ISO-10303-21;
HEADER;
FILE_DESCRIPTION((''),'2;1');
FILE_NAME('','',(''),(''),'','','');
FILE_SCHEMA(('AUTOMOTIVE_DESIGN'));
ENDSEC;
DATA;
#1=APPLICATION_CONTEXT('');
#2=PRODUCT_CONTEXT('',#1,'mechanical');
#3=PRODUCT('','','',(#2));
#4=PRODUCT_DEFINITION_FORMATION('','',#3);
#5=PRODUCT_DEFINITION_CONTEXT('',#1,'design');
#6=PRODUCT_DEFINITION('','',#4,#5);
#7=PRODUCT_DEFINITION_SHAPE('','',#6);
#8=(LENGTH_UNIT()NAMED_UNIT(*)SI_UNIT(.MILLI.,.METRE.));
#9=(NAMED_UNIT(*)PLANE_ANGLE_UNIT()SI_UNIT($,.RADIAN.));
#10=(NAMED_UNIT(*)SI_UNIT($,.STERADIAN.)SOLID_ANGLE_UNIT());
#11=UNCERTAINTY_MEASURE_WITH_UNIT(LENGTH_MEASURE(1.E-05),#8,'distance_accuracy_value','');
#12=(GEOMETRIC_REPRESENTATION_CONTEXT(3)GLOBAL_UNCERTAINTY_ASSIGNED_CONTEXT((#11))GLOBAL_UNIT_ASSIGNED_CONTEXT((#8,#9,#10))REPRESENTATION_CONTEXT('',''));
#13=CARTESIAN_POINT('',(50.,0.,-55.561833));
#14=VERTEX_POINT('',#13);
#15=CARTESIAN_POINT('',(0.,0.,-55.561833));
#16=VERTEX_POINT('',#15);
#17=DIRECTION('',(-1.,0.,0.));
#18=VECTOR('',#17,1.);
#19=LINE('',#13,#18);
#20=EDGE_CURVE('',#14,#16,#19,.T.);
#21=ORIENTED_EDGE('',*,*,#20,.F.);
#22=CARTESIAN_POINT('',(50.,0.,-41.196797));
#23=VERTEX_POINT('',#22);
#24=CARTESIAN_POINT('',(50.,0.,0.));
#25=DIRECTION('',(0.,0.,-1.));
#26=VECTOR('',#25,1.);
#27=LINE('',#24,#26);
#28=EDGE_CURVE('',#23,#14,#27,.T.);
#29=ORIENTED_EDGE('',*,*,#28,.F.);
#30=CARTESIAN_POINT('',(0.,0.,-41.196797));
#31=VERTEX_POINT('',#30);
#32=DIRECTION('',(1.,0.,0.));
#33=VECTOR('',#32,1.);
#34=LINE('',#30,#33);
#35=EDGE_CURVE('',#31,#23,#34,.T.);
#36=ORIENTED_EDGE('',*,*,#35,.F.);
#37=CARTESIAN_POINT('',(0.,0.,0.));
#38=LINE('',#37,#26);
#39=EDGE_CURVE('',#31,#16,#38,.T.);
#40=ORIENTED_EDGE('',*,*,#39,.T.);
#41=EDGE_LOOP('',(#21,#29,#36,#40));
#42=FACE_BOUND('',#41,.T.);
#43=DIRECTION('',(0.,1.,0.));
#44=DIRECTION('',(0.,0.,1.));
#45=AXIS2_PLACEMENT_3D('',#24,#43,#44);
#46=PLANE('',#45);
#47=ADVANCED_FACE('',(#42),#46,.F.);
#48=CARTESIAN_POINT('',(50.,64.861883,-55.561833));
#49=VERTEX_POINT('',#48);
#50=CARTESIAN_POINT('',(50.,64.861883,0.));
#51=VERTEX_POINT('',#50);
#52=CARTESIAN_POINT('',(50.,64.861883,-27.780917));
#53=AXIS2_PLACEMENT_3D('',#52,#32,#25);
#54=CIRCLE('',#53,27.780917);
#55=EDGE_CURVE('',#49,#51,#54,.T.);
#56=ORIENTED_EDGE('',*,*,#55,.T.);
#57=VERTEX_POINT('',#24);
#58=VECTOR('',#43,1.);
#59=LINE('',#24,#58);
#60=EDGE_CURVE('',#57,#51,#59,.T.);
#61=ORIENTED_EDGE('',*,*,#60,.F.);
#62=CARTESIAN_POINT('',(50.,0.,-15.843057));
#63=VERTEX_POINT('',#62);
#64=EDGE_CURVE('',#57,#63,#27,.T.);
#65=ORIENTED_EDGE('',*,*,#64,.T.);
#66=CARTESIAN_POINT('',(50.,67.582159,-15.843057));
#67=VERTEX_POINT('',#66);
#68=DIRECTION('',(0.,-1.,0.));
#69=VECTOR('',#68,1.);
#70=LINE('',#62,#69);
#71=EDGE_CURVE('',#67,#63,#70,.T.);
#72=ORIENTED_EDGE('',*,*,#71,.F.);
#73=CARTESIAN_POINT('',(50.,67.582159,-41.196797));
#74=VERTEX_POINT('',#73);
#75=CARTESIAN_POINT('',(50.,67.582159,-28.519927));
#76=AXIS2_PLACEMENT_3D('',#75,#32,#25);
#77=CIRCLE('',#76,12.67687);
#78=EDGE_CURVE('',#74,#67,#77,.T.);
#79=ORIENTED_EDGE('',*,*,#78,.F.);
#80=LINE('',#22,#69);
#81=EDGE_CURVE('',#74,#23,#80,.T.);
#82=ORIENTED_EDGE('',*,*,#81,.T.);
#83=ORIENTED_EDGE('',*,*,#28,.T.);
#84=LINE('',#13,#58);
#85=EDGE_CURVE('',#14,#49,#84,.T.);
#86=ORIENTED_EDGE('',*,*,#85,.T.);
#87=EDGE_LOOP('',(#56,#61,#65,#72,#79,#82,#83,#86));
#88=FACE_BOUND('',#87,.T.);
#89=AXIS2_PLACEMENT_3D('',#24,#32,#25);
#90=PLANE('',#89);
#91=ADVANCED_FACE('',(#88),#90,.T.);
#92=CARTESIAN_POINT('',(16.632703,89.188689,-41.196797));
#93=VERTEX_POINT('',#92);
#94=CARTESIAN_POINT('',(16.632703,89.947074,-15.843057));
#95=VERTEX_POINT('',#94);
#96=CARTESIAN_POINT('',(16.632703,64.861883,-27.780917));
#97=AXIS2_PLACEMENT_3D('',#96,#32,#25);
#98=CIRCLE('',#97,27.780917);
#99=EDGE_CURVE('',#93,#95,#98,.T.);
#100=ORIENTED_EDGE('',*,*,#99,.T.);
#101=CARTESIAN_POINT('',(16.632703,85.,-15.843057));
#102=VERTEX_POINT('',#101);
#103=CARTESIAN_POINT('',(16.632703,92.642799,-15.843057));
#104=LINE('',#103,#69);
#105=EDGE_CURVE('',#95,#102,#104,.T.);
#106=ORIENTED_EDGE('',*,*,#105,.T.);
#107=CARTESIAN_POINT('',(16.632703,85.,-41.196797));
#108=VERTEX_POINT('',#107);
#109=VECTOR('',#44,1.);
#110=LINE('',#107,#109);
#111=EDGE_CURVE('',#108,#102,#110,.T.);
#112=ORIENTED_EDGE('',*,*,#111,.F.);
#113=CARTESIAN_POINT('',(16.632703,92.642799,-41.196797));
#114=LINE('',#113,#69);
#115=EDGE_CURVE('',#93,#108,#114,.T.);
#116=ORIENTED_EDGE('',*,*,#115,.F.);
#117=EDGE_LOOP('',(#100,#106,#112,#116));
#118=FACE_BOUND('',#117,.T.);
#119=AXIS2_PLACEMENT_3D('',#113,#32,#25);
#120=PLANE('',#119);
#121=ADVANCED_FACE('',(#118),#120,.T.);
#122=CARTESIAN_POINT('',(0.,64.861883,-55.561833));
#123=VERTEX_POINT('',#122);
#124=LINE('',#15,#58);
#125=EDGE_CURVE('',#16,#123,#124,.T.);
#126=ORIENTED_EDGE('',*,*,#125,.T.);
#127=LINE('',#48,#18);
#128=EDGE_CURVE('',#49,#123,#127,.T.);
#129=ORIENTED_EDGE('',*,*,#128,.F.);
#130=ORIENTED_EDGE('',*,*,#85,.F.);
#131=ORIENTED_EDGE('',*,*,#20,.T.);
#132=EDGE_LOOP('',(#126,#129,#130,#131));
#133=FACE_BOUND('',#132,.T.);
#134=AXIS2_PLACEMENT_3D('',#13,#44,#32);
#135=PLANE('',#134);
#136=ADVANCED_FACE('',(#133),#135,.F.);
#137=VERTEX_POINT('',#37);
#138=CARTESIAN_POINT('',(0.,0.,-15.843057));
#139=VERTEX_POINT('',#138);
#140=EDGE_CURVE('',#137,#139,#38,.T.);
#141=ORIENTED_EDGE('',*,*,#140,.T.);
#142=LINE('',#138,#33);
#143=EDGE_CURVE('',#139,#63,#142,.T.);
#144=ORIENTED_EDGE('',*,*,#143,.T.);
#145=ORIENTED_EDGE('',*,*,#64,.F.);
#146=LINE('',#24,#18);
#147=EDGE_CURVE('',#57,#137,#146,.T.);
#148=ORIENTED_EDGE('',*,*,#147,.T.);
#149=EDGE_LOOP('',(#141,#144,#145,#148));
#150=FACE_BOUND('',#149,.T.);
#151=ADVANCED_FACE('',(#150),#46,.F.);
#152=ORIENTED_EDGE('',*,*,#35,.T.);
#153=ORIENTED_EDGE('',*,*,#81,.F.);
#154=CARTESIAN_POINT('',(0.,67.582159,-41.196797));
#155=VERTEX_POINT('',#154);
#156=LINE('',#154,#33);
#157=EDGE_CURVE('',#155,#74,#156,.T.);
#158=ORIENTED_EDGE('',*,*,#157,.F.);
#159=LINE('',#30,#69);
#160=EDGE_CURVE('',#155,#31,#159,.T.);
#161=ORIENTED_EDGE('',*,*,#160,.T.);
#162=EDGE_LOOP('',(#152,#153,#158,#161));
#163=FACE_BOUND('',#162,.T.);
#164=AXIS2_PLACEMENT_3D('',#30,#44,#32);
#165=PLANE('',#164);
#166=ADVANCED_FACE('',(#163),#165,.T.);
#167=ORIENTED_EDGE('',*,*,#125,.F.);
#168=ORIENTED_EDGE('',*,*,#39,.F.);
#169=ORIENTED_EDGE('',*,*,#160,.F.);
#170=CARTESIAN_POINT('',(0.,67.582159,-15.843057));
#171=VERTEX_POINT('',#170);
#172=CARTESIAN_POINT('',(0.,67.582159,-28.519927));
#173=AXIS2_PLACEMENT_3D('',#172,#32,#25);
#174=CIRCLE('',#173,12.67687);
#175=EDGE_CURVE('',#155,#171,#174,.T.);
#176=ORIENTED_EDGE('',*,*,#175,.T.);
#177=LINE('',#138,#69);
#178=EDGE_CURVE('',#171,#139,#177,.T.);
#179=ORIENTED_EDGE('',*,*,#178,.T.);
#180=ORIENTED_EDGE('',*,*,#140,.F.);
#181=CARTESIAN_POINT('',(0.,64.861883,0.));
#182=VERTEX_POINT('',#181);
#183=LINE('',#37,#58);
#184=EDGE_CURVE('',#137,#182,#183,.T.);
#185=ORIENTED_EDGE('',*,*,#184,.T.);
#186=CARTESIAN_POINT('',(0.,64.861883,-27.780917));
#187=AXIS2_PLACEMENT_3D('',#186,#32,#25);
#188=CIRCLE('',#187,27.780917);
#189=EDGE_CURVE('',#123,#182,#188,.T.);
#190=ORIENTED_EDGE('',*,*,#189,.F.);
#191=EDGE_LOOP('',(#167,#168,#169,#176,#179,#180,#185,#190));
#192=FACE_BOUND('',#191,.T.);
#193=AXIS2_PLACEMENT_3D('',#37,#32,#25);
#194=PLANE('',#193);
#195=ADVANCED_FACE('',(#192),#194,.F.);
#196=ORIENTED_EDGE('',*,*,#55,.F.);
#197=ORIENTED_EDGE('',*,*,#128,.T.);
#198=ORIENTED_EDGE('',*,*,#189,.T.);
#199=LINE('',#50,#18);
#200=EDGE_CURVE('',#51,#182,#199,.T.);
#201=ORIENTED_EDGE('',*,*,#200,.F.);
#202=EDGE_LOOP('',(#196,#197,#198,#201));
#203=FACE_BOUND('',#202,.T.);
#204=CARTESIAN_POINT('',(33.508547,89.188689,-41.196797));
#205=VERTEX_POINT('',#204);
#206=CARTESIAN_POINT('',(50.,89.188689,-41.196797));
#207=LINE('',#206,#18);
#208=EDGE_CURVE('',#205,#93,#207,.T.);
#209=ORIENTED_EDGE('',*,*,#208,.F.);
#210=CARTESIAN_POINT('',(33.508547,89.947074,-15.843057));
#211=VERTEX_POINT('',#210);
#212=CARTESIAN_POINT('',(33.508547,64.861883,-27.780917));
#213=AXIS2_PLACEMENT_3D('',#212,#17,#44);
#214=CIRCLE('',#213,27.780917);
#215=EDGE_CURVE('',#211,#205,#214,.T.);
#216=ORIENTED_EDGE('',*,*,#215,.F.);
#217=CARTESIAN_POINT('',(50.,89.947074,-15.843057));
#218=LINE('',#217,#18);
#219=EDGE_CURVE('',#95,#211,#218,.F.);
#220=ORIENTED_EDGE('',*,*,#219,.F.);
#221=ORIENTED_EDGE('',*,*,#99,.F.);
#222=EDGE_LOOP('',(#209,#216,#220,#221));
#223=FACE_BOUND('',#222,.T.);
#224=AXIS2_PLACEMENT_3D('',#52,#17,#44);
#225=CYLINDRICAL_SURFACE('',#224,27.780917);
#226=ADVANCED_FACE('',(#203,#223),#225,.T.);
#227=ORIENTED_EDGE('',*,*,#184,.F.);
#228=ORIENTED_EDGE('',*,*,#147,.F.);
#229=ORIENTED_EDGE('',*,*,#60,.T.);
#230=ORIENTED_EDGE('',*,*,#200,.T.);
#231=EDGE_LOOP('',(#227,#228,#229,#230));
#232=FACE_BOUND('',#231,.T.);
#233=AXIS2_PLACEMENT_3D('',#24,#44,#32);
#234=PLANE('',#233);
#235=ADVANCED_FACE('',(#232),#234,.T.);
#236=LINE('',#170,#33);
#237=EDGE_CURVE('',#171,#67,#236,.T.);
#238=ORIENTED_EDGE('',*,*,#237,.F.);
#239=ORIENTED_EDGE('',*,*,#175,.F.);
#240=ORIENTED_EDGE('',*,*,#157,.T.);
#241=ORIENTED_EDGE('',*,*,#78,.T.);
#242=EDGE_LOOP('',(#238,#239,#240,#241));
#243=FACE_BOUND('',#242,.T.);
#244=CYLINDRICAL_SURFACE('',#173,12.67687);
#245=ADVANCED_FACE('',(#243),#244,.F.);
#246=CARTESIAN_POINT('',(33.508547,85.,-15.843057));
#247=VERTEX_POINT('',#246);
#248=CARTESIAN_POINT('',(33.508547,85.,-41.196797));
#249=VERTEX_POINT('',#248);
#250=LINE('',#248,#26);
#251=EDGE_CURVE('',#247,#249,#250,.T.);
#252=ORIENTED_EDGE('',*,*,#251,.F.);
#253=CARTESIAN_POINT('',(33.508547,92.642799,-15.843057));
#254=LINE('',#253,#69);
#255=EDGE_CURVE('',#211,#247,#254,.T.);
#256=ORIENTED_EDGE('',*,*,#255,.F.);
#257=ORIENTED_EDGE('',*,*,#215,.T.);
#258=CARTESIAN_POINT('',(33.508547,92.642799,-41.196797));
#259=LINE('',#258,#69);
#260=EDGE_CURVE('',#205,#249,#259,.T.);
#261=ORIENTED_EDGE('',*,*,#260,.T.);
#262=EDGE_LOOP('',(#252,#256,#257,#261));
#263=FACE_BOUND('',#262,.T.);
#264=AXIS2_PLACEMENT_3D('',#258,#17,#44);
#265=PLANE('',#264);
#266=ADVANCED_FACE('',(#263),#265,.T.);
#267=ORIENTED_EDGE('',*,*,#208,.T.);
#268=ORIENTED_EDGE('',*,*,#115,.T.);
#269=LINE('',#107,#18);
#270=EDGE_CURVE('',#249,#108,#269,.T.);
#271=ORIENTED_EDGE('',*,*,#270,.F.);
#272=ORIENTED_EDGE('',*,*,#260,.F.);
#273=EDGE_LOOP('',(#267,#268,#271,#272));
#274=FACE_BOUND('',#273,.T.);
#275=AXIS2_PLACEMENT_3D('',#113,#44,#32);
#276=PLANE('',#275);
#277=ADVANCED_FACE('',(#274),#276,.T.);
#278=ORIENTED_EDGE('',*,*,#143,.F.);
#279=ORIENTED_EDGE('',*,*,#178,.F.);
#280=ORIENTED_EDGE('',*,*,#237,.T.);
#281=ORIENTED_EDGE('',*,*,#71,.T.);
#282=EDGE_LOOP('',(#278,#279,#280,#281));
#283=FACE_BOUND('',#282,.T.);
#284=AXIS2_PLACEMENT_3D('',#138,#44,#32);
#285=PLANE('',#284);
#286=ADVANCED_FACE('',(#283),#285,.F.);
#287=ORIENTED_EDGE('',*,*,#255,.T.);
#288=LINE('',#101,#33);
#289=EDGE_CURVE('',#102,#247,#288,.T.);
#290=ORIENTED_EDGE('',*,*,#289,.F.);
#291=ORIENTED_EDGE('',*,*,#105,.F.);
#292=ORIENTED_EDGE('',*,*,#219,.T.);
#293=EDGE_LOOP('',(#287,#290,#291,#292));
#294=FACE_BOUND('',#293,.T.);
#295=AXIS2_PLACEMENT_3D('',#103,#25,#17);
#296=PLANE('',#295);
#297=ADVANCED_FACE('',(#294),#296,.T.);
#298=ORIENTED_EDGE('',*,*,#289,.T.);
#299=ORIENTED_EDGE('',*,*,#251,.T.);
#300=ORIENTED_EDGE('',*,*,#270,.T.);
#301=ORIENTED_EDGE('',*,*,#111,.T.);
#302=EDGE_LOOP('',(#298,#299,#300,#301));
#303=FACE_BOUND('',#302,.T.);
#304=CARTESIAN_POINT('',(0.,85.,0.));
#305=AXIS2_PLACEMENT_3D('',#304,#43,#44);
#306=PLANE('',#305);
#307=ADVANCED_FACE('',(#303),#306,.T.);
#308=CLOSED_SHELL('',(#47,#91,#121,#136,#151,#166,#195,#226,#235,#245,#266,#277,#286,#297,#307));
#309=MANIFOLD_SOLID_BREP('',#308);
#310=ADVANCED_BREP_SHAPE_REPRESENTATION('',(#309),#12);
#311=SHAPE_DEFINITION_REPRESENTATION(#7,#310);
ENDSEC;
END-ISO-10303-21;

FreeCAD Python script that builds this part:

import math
import FreeCAD as App
import Part
import Sketcher
from FreeCAD import Vector
Q = App.Units.Quantity


def add_polygon(sketch, points):
    """Adds a closed chain of lines whose ends are joined by coincident constraints."""
    first, n = sketch.GeometryCount, len(points)
    for a, b in zip(points, points[1:] + points[:1]):
        sketch.addGeometry(Part.LineSegment(App.Vector(*a, 0), App.Vector(*b, 0)), False)
    for i in range(n):
        sketch.addConstraint(Sketcher.Constraint("Coincident", first + i, 2, first + (i + 1) % n, 1))

doc = App.newDocument("Part")
body = doc.addObject("PartDesign::Body", "Body")

sketch1 = doc.addObject("Sketcher::SketchObject", "Sketch")
body.addObject(sketch1)
sketch1.AttachmentSupport = (doc.YZ_Plane, [""])
sketch1.MapMode = "FlatFace"
sketch1.addGeometry([
    Part.ArcOfCircle(Part.Circle(Vector(65, -28, 0), Vector(0, 0, 1), 28), math.radians(-90), math.radians(90)),
    Part.LineSegment(Vector(65, 0, 0), Vector(0, 0, 0)),
    Part.LineSegment(Vector(0, 0, 0), Vector(0, -56, 0)),
    Part.LineSegment(Vector(0, -56, 0), Vector(65, -56, 0)),
], False)
sketch1.addConstraint([
    Sketcher.Constraint("Tangent", 0, 2, 1, 1),
    Sketcher.Constraint("Coincident", 1, 2, 2, 1),
    Sketcher.Constraint("Coincident", 2, 2, 3, 1),
    Sketcher.Constraint("Tangent", 3, 2, 0, 1),
    Sketcher.Constraint("Horizontal", 1),
    Sketcher.Constraint("Vertical", 2),
    Sketcher.Constraint("Horizontal", 3),
    Sketcher.Constraint("Coincident", 1, 2, -1, 1),
    Sketcher.Constraint("Radius", 0, Q("27.780917 mm")),
    Sketcher.Constraint("DistanceX", 1, 2, 1, 1, Q("64.861883 mm")),
])
pad1 = doc.addObject("PartDesign::Pad", "Pad")
body.addObject(pad1)
pad1.Profile = sketch1
pad1.Length = 50

sketch2 = doc.addObject("Sketcher::SketchObject", "Sketch001")
body.addObject(sketch2)
sketch2.AttachmentSupport = (doc.YZ_Plane, [""])
sketch2.MapMode = "FlatFace"
sketch2.AttachmentOffset = App.Placement(Vector(0, 0, 50), App.Rotation())
sketch2.addGeometry([
    Part.ArcOfCircle(Part.Circle(Vector(68, -29, 0), Vector(0, 0, 1), 13), math.radians(-90), math.radians(90)),
    Part.LineSegment(Vector(68, -16, 0), Vector(0, -16, 0)),
    Part.LineSegment(Vector(0, -16, 0), Vector(0, -41, 0)),
    Part.LineSegment(Vector(0, -41, 0), Vector(68, -41, 0)),
], False)
sketch2.addConstraint([
    Sketcher.Constraint("Tangent", 0, 2, 1, 1),
    Sketcher.Constraint("Coincident", 1, 2, 2, 1),
    Sketcher.Constraint("Coincident", 2, 2, 3, 1),
    Sketcher.Constraint("Tangent", 3, 2, 0, 1),
    Sketcher.Constraint("Horizontal", 1),
    Sketcher.Constraint("Vertical", 2),
    Sketcher.Constraint("Horizontal", 3),
    Sketcher.Constraint("PointOnObject", 1, 2, -2),
    Sketcher.Constraint("Radius", 0, Q("12.67687 mm")),
    Sketcher.Constraint("DistanceX", 1, 2, 1, 1, Q("67.582159 mm")),
    Sketcher.Constraint("DistanceY", 0, 3, -1, 1, Q("28.519927 mm")),
])
pocket1 = doc.addObject("PartDesign::Pocket", "Pocket")
body.addObject(pocket1)
pocket1.Profile = sketch2
pocket1.Type = "ThroughAll"

sketch3 = doc.addObject("Sketcher::SketchObject", "Sketch002")
body.addObject(sketch3)
sketch3.AttachmentSupport = (doc.XZ_Plane, [""])
sketch3.MapMode = "FlatFace"
sketch3.AttachmentOffset = App.Placement(Vector(0, 0, -85), App.Rotation())
add_polygon(sketch3, [(17, -41), (17, -16), (34, -16), (34, -41)])
sketch3.addConstraint([
    Sketcher.Constraint("Vertical", 0),
    Sketcher.Constraint("Horizontal", 1),
    Sketcher.Constraint("Vertical", 2),
    Sketcher.Constraint("Horizontal", 3),
    Sketcher.Constraint("DistanceY", 0, 1, 0, 2, Q("25.35374 mm")),
    Sketcher.Constraint("DistanceX", 1, 1, 1, 2, Q("16.875844 mm")),
    Sketcher.Constraint("DistanceX", -1, 1, 0, 2, Q("16.632703 mm")),
    Sketcher.Constraint("DistanceY", 0, 2, -1, 1, Q("15.843057 mm")),
])
pocket2 = doc.addObject("PartDesign::Pocket", "Pocket001")
body.addObject(pocket2)
pocket2.Profile = sketch3
pocket2.Type = "ThroughAll"

doc.recompute()
